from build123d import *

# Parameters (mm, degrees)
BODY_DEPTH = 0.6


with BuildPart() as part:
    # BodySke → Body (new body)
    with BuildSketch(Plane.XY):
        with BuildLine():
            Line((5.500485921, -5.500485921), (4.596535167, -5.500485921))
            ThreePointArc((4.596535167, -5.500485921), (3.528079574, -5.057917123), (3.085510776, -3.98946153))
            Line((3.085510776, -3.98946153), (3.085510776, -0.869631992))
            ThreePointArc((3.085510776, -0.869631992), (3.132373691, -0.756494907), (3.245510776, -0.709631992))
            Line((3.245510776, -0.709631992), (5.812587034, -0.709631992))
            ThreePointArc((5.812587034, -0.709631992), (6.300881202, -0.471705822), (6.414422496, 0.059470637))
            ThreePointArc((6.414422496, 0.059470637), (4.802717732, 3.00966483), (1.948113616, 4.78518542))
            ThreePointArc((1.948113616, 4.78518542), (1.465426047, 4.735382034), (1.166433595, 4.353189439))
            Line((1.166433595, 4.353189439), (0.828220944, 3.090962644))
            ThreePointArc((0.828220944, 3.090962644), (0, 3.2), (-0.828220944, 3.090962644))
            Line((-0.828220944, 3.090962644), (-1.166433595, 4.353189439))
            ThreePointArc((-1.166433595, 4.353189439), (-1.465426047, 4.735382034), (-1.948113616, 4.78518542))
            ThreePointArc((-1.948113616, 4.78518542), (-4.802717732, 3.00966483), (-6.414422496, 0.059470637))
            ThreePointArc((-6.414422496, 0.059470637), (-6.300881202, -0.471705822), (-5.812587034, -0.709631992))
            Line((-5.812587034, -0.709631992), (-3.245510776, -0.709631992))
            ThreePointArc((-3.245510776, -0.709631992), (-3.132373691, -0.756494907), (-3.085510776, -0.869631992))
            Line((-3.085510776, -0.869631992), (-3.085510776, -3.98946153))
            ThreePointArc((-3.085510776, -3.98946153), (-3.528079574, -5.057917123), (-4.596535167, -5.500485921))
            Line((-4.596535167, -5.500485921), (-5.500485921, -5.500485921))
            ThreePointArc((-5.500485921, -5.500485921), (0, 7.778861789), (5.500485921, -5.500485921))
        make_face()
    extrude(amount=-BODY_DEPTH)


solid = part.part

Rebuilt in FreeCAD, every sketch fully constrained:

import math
import FreeCAD as App
import Part
import Sketcher
from FreeCAD import Vector
Q = App.Units.Quantity

doc = App.newDocument("Part")
params = doc.addObject("Spreadsheet::Sheet", "Params")
for row, (alias, value) in enumerate([
    ("sketch1_radius", "3.2 mm"),
    ("sketch1_radius2", "0.16 mm"),
    ("pad1_length", "0.6 mm"),
], start=1):
    params.set(f"A{row}", alias)
    params.set(f"B{row}", "=" + value)
    params.setAlias(f"B{row}", alias)

body = doc.addObject("PartDesign::Body", "Body")

sketch1 = body.newObject("Sketcher::SketchObject", "Sketch")
sketch1.AttachmentSupport = (doc.getObject("XY_Plane"), [""])
sketch1.MapMode = "FlatFace"
sketch1.addGeometry(Part.LineSegment(Vector(4.6, -5.5, 0), Vector(5.5, -5.5, 0)), False)
sketch1.addGeometry(Part.ArcOfCircle(Part.Circle(Vector(0, 0, 0), Vector(0, 0, 1), 7.78), math.radians(-45), math.radians(225)), False)
sketch1.addGeometry(Part.LineSegment(Vector(-5.5, -5.5, 0), Vector(-4.6, -5.5, 0)), False)
sketch1.addGeometry(Part.ArcOfCircle(Part.Circle(Vector(-4.6, -3.99, 0), Vector(0, 0, 1), 1.51), math.radians(-90), math.radians(0)), False)
sketch1.addGeometry(Part.LineSegment(Vector(-3.09, -3.99, 0), Vector(-3.09, -0.87, 0)), False)
sketch1.addGeometry(Part.ArcOfCircle(Part.Circle(Vector(-3.25, -0.87, 0), Vector(0, 0, 1), 0.16), math.radians(0), math.radians(90)), False)
sketch1.addGeometry(Part.LineSegment(Vector(-3.25, -0.71, 0), Vector(-5.81, -0.71, 0)), False)
sketch1.addGeometry(Part.ArcOfCircle(Part.Circle(Vector(-5.81, -0.09, 0), Vector(0, 0, 1), 0.62), math.radians(166), math.radians(270)), False)
sketch1.addGeometry(Part.ArcOfCircle(Part.Circle(Vector(0, -1.53, 0), Vector(0, 0, 1), 6.61), math.radians(107), math.radians(166)), False)
sketch1.addGeometry(Part.ArcOfCircle(Part.Circle(Vector(-1.77, 4.19, 0), Vector(0, 0, 1), 0.62), math.radians(15), math.radians(107)), False)
sketch1.addGeometry(Part.LineSegment(Vector(-1.17, 4.35, 0), Vector(-0.83, 3.09, 0)), False)
sketch1.addGeometry(Part.ArcOfCircle(Part.Circle(Vector(0, 0, 0), Vector(0, 0, 1), 3.2), math.radians(75), math.radians(105)), False)
sketch1.addGeometry(Part.LineSegment(Vector(0.83, 3.09, 0), Vector(1.17, 4.35, 0)), False)
sketch1.addGeometry(Part.ArcOfCircle(Part.Circle(Vector(1.77, 4.19, 0), Vector(0, 0, 1), 0.62), math.radians(73), math.radians(165)), False)
sketch1.addGeometry(Part.ArcOfCircle(Part.Circle(Vector(0, -1.53, 0), Vector(0, 0, 1), 6.61), math.radians(14), math.radians(73)), False)
sketch1.addGeometry(Part.ArcOfCircle(Part.Circle(Vector(5.81, -0.09, 0), Vector(0, 0, 1), 0.62), math.radians(-90), math.radians(14)), False)
sketch1.addGeometry(Part.LineSegment(Vector(5.81, -0.71, 0), Vector(3.25, -0.71, 0)), False)
sketch1.addGeometry(Part.ArcOfCircle(Part.Circle(Vector(3.25, -0.87, 0), Vector(0, 0, 1), 0.16), math.radians(90), math.radians(180)), False)
sketch1.addGeometry(Part.LineSegment(Vector(3.09, -0.87, 0), Vector(3.09, -3.99, 0)), False)
sketch1.addGeometry(Part.ArcOfCircle(Part.Circle(Vector(4.6, -3.99, 0), Vector(0, 0, 1), 1.51), math.radians(-180), math.radians(-90)), False)
sketch1.addConstraint(Sketcher.Constraint("Coincident", 0, 2, 1, 1))
sketch1.addConstraint(Sketcher.Constraint("Coincident", 1, 2, 2, 1))
sketch1.addConstraint(Sketcher.Constraint("Tangent", 2, 2, 3, 1))
sketch1.addConstraint(Sketcher.Constraint("Tangent", 3, 2, 4, 1))
sketch1.addConstraint(Sketcher.Constraint("Tangent", 4, 2, 5, 1))
sketch1.addConstraint(Sketcher.Constraint("Tangent", 5, 2, 6, 1))
sketch1.addConstraint(Sketcher.Constraint("Tangent", 6, 2, 7, 2))
sketch1.addConstraint(Sketcher.Constraint("Tangent", 7, 1, 8, 2))
sketch1.addConstraint(Sketcher.Constraint("Tangent", 8, 1, 9, 2))
sketch1.addConstraint(Sketcher.Constraint("Tangent", 9, 1, 10, 1))
sketch1.addConstraint(Sketcher.Constraint("Coincident", 10, 2, 11, 2))
sketch1.addConstraint(Sketcher.Constraint("Coincident", 11, 1, 12, 1))
sketch1.addConstraint(Sketcher.Constraint("Tangent", 12, 2, 13, 2))
sketch1.addConstraint(Sketcher.Constraint("Tangent", 13, 1, 14, 2))
sketch1.addConstraint(Sketcher.Constraint("Tangent", 14, 1, 15, 2))
sketch1.addConstraint(Sketcher.Constraint("Tangent", 15, 1, 16, 1))
sketch1.addConstraint(Sketcher.Constraint("Tangent", 16, 2, 17, 1))
sketch1.addConstraint(Sketcher.Constraint("Tangent", 17, 2, 18, 1))
sketch1.addConstraint(Sketcher.Constraint("Tangent", 18, 2, 19, 1))
sketch1.addConstraint(Sketcher.Constraint("Tangent", 19, 2, 0, 1))
sketch1.addConstraint(Sketcher.Constraint("Horizontal", 0))
sketch1.addConstraint(Sketcher.Constraint("Horizontal", 2))
sketch1.addConstraint(Sketcher.Constraint("Vertical", 4))
sketch1.addConstraint(Sketcher.Constraint("Horizontal", 6))
sketch1.addConstraint(Sketcher.Constraint("Horizontal", 16))
sketch1.addConstraint(Sketcher.Constraint("Vertical", 18))
sketch1.addConstraint(Sketcher.Constraint("Coincident", 1, 3, -1, 1))
sketch1.addConstraint(Sketcher.Constraint("Coincident", 11, 3, -1, 1))
sketch1.addConstraint(Sketcher.Constraint("Coincident", 14, 3, 8, 3))
sketch1.addConstraint(Sketcher.Constraint("Equal", 7, 9))
sketch1.addConstraint(Sketcher.Constraint("Equal", 9, 13))
sketch1.addConstraint(Sketcher.Constraint("Equal", 8, 14))
sketch1.addConstraint(Sketcher.Constraint("Equal", 13, 15))
sketch1.addConstraint(Sketcher.Constraint("Equal", 5, 17))
sketch1.addConstraint(Sketcher.Constraint("Equal", 3, 19))
sketch1.addConstraint(Sketcher.Constraint("Symmetric", 9, 3, 13, 3, -2))
sketch1.addConstraint(Sketcher.Constraint("Symmetric", 5, 3, 17, 3, -2))
sketch1.addConstraint(Sketcher.Constraint("Horizontal", 3, 3, 19, 3))
sketch1.addConstraint(Sketcher.Constraint("Horizontal", 10, 2, 11, 1))
sketch1.addConstraint(Sketcher.Constraint("Radius", 11, 3.2))
sketch1.addConstraint(Sketcher.Constraint("Angle", 10, Q("-75 deg")))
sketch1.addConstraint(Sketcher.Constraint("Radius", 5, 0.16))
sketch1.addConstraint(Sketcher.Constraint("Radius", 1, 7.778862))
sketch1.addConstraint(Sketcher.Constraint("Radius", 8, 6.608282))
sketch1.addConstraint(Sketcher.Constraint("Radius", 3, 1.511024))
sketch1.addConstraint(Sketcher.Constraint("Radius", 7, 0.620024))
sketch1.addConstraint(Sketcher.Constraint("DistanceX", 0, 1, 0, 2, 0.903951))
sketch1.addConstraint(Sketcher.Constraint("DistanceY", 4, 1, 4, 2, 3.11983))
sketch1.addConstraint(Sketcher.Constraint("DistanceX", 0, 2, 15, 3, 0.312101))
sketch1.addConstraint(Sketcher.Constraint("DistanceY", 3, 3, -1, 1, 3.989462))
sketch1.addConstraint(Sketcher.Constraint("DistanceX", 9, 3, -1, 1, 1.765331))
sketch1.setExpression("Constraints[39]", "Params.sketch1_radius")
sketch1.setExpression("Constraints[41]", "Params.sketch1_radius2")
pad1 = body.newObject("PartDesign::Pad", "Pad")
pad1.Profile = sketch1
pad1.setExpression("Length", "Params.pad1_length")
pad1.Reversed = True

doc.recompute()
